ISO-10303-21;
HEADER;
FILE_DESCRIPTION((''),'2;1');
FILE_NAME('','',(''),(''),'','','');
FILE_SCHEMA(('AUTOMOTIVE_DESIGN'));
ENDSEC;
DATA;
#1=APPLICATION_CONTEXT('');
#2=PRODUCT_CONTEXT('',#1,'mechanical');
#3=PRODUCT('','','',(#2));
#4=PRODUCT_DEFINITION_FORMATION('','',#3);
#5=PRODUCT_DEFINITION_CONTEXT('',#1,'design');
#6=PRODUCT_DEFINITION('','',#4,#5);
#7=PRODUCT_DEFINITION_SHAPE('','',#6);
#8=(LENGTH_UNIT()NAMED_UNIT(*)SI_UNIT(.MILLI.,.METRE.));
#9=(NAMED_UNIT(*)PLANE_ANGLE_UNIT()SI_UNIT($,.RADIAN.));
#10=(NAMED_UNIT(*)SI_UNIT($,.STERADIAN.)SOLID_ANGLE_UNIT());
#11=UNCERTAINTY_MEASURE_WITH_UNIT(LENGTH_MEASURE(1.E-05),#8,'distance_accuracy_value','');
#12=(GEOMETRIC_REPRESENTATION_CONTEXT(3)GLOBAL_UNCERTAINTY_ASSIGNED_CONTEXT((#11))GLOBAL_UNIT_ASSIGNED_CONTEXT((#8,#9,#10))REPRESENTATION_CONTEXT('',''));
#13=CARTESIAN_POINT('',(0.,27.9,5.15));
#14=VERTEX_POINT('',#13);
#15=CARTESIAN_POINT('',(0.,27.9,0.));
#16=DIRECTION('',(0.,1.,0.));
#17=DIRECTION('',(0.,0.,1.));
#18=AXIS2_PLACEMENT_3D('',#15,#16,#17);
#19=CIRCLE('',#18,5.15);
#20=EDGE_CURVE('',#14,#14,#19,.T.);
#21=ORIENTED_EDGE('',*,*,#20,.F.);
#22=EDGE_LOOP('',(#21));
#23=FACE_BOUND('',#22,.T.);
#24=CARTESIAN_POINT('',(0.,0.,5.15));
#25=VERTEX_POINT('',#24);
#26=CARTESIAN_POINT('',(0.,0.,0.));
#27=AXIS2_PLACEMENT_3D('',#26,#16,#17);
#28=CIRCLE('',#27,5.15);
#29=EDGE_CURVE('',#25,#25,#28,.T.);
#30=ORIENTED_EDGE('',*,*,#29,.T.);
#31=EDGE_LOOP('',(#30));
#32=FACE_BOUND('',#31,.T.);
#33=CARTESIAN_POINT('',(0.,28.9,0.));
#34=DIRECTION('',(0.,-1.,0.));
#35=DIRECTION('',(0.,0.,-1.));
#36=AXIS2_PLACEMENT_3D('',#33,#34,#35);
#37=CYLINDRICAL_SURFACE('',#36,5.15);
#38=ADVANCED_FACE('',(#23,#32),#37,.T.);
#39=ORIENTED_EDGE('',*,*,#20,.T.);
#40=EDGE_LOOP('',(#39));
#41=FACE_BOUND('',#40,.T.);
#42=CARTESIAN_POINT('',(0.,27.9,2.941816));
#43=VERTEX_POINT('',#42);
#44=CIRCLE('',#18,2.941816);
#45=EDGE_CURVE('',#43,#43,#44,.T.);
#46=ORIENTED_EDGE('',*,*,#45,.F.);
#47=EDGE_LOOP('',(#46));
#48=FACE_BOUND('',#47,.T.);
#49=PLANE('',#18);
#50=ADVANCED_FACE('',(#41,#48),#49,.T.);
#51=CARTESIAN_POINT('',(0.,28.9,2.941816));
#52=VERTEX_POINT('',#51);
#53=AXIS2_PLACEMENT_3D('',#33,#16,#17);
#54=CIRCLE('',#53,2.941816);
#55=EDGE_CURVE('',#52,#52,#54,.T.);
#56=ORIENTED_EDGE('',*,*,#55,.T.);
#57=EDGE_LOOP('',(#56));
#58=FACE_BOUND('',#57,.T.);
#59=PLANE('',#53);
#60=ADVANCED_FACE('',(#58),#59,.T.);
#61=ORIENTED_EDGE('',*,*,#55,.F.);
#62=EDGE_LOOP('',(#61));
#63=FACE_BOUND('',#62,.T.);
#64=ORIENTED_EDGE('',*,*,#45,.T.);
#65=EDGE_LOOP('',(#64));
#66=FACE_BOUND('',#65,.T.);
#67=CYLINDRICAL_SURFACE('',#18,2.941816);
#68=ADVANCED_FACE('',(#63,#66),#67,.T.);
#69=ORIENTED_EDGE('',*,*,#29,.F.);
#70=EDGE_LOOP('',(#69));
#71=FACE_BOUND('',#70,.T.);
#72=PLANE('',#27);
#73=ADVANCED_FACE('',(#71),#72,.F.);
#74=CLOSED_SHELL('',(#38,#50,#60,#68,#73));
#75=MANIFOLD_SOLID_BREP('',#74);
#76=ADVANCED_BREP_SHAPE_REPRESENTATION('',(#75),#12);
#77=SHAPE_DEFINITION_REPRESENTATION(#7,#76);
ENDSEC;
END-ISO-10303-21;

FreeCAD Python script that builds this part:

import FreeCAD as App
import Part
import Sketcher
Q = App.Units.Quantity

doc = App.newDocument("Part")
params = doc.addObject("Spreadsheet::Sheet", "Params")
for row, (alias, value) in enumerate([
    ("sketch1_diameter", "10.3 mm"),
    ("pad1_length", "28.9 mm"),
    ("sketch2_diameter", "10.3 mm"),
    ("pocket1_length", "1 mm"),
], start=1):
    params.set(f"A{row}", alias)
    params.set(f"B{row}", "=" + value)
    params.setAlias(f"B{row}", alias)

body = doc.addObject("PartDesign::Body", "Body")

# Sketch on XZ plane
sketch1 = body.newObject("Sketcher::SketchObject", "Sketch")
sketch1.AttachmentSupport = (doc.getObject("XZ_Plane"), [""])
sketch1.MapMode = "FlatFace"
sketch1.addGeometry(Part.Circle(App.Vector(0, 0, 0), App.Vector(0, 0, 1), 5), False)
sketch1.addConstraint(Sketcher.Constraint("Coincident", 0, 3, -1, 1))
sketch1.addConstraint(Sketcher.Constraint("Diameter", 0, Q("10.3 mm")))
sketch1.setExpression("Constraints[1]", "Params.sketch1_diameter")
pad1 = body.newObject("PartDesign::Pad", "Pad")
pad1.Profile = sketch1
pad1.setExpression("Length", "Params.pad1_length")
pad1.Reversed = True

# Sketch on XZ plane
sketch2 = body.newObject("Sketcher::SketchObject", "Sketch001")
sketch2.AttachmentSupport = (doc.getObject("XZ_Plane"), [""])
sketch2.MapMode = "FlatFace"
sketch2.AttachmentOffset = App.Placement(App.Vector(0, 0, -27.9), App.Rotation())
sketch2.addGeometry(Part.Circle(App.Vector(0, 0, 0), App.Vector(0, 0, 1), 5.2), False)
sketch2.addGeometry(Part.Circle(App.Vector(0, 0, 0), App.Vector(0, 0, 1), 2.9), False)
sketch2.addConstraint(Sketcher.Constraint("Coincident", 0, 3, -1, 1))
sketch2.addConstraint(Sketcher.Constraint("Coincident", 1, 3, -1, 1))
sketch2.addConstraint(Sketcher.Constraint("Diameter", 0, Q("10.3 mm")))
sketch2.addConstraint(Sketcher.Constraint("Diameter", 1, Q("5.883632 mm")))
sketch2.setExpression("Constraints[2]", "Params.sketch2_diameter")
pocket1 = body.newObject("PartDesign::Pocket", "Pocket")
pocket1.Profile = sketch2
pocket1.setExpression("Length", "Params.pocket1_length")

doc.recompute()
